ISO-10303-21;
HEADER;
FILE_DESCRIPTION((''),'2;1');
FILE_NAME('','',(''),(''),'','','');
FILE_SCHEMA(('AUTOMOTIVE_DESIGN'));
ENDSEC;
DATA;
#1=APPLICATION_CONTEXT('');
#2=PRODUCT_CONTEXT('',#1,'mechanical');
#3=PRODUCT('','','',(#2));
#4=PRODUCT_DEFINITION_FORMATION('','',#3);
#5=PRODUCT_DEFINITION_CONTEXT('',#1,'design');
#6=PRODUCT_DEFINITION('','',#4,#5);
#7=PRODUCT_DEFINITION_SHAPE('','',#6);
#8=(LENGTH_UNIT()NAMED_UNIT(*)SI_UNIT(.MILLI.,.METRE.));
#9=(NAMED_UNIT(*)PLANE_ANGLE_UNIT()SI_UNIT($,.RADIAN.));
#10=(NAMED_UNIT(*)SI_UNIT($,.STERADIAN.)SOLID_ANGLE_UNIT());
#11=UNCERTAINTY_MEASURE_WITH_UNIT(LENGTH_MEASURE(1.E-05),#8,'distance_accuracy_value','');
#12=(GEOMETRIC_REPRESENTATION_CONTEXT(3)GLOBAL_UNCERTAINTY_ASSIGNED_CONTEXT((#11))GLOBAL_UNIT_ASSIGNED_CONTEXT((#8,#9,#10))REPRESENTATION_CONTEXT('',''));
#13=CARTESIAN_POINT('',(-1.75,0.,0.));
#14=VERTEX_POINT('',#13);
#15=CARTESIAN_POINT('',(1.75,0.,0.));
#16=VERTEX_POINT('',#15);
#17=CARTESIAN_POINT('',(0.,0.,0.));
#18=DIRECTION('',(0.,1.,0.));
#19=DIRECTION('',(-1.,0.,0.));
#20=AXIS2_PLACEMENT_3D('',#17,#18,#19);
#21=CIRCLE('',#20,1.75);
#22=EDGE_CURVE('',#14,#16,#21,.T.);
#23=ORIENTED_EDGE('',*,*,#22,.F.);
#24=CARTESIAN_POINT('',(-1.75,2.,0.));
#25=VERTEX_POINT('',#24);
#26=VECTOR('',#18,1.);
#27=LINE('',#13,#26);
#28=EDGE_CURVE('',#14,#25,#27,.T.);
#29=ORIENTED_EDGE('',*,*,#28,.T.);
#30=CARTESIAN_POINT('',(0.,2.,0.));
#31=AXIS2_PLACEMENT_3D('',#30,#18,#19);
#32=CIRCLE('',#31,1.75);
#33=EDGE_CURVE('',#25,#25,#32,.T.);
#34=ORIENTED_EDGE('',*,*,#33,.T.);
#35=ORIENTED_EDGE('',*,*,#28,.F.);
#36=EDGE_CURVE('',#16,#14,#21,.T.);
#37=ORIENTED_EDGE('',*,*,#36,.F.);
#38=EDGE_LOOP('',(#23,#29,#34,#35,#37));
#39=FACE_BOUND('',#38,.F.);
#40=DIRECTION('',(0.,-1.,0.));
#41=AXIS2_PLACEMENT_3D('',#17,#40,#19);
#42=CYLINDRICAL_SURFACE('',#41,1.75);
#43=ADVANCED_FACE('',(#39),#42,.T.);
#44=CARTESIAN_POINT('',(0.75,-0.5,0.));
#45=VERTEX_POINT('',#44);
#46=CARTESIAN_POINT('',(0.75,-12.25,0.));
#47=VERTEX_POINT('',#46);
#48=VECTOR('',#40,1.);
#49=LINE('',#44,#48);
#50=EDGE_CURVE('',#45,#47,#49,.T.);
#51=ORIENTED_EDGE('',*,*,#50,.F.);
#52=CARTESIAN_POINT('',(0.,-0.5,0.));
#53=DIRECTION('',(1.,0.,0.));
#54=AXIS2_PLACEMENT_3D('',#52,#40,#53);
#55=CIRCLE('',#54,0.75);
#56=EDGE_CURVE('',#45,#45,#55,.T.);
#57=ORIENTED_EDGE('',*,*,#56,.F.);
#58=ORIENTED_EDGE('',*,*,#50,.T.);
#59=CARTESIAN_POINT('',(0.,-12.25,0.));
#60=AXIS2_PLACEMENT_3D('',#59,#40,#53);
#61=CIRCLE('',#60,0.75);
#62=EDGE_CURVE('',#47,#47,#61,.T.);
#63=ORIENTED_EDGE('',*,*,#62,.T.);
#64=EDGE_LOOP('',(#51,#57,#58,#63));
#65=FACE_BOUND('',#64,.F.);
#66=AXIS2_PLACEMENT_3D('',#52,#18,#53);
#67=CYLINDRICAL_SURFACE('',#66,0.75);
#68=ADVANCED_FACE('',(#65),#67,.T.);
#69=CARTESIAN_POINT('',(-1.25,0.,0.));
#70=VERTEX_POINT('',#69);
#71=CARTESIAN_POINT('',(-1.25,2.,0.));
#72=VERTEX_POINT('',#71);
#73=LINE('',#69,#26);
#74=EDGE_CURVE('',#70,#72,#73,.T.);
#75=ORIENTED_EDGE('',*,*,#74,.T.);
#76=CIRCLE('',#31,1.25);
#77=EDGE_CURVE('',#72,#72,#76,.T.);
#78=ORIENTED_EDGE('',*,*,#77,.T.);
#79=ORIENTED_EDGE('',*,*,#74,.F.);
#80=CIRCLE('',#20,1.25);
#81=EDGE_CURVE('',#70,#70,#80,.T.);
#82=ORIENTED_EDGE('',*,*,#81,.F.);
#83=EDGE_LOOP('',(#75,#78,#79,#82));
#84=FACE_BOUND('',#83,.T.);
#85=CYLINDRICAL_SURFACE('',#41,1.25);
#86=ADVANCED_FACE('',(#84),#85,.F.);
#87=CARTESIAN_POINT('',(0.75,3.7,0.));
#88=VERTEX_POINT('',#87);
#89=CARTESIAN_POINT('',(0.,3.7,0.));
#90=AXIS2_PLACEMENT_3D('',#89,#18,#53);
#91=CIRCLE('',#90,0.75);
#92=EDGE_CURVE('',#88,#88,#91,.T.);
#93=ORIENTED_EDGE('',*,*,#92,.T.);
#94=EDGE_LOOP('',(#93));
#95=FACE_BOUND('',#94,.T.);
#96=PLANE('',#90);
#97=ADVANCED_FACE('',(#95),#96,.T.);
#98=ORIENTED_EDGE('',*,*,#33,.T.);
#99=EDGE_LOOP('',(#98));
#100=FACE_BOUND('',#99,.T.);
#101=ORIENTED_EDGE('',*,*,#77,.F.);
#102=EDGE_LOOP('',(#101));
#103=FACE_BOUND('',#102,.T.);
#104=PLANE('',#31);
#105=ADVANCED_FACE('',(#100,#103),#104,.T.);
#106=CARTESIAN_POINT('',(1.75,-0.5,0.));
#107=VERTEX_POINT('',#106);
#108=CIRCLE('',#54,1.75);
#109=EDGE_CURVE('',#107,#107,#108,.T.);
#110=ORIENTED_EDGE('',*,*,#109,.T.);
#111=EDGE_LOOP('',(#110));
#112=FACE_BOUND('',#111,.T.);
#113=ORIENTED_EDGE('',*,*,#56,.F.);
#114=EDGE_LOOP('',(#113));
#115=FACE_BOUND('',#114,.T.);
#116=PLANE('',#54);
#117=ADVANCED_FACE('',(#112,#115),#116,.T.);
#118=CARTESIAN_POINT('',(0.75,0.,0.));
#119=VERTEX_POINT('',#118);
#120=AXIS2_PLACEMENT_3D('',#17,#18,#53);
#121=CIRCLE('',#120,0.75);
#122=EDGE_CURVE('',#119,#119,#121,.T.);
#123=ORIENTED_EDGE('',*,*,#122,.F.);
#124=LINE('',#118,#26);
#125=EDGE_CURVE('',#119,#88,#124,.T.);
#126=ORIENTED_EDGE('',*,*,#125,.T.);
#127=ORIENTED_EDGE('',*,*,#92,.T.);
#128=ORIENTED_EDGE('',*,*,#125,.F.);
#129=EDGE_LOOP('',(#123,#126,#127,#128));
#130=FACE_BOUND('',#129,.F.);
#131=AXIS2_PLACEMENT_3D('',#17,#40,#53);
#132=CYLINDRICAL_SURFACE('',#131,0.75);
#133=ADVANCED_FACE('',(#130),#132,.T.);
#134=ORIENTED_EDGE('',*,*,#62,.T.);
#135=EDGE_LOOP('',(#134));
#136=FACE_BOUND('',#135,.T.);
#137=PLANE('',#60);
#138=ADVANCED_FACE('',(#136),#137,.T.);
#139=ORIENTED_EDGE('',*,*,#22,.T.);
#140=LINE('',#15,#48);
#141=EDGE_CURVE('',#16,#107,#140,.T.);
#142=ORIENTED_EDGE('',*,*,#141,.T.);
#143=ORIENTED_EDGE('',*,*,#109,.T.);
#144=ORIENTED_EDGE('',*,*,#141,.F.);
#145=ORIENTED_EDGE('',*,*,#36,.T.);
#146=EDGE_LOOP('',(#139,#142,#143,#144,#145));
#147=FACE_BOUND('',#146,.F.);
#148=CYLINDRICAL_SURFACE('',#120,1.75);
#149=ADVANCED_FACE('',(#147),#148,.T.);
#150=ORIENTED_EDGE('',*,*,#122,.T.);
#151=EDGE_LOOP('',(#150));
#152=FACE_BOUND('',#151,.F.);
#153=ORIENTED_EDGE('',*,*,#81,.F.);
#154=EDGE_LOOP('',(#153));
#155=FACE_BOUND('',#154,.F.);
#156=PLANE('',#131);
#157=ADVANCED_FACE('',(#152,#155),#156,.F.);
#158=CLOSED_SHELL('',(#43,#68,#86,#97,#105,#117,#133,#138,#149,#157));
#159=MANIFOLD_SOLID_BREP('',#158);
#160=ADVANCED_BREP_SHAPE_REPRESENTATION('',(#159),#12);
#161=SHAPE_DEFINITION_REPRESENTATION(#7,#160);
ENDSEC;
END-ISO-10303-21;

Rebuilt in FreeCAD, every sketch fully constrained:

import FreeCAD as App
import Part
import Sketcher
Q = App.Units.Quantity

doc = App.newDocument("Part")
body = doc.addObject("PartDesign::Body", "Body")

sketch1 = doc.addObject("Sketcher::SketchObject", "Sketch")
body.addObject(sketch1)
sketch1.AttachmentSupport = (doc.XZ_Plane, [""])
sketch1.MapMode = "FlatFace"
sketch1.addGeometry([
    Part.Circle(App.Vector(0, 0, 0), App.Vector(0, 0, 1), 1.75),
    Part.Circle(App.Vector(0, 0, 0), App.Vector(0, 0, 1), 1.25),
], False)
sketch1.addConstraint([
    Sketcher.Constraint("Coincident", 0, 3, -1, 1),
    Sketcher.Constraint("Coincident", 1, 3, -1, 1),
    Sketcher.Constraint("Diameter", 0, Q("3.5 mm")),
    Sketcher.Constraint("Diameter", 1, Q("2.5 mm")),
])
pad1 = doc.addObject("PartDesign::Pad", "Pad")
body.addObject(pad1)
pad1.Profile = sketch1
pad1.Length = 2
pad1.Reversed = True

sketch2 = doc.addObject("Sketcher::SketchObject", "Sketch001")
body.addObject(sketch2)
sketch2.AttachmentSupport = (doc.XZ_Plane, [""])
sketch2.MapMode = "FlatFace"
sketch2.addGeometry(Part.Circle(App.Vector(0, 0, 0), App.Vector(0, 0, 1), 1.75), False)
sketch2.addConstraint([
    Sketcher.Constraint("Coincident", 0, 3, -1, 1),
    Sketcher.Constraint("Diameter", 0, Q("3.5 mm")),
])
pad2 = doc.addObject("PartDesign::Pad", "Pad001")
body.addObject(pad2)
pad2.Profile = sketch2
pad2.Length = 0.5

sketch3 = doc.addObject("Sketcher::SketchObject", "Sketch002")
body.addObject(sketch3)
sketch3.AttachmentSupport = (doc.XZ_Plane, [""])
sketch3.MapMode = "FlatFace"
sketch3.addGeometry(Part.Circle(App.Vector(0, 0, 0), App.Vector(0, 0, 1), 0.75), False)
sketch3.addConstraint([
    Sketcher.Constraint("Coincident", 0, 3, -1, 1),
    Sketcher.Constraint("Diameter", 0, Q("1.5 mm")),
])
pad3 = doc.addObject("PartDesign::Pad", "Pad002")
body.addObject(pad3)
pad3.Profile = sketch3
pad3.Length = 3.7
pad3.Reversed = True

sketch4 = doc.addObject("Sketcher::SketchObject", "Sketch003")
body.addObject(sketch4)
sketch4.AttachmentSupport = (doc.XZ_Plane, [""])
sketch4.MapMode = "FlatFace"
sketch4.AttachmentOffset = App.Placement(App.Vector(0, 0, 0.5), App.Rotation())
sketch4.addGeometry(Part.Circle(App.Vector(0, 0, 0), App.Vector(0, 0, 1), 0.75), False)
sketch4.addConstraint([
    Sketcher.Constraint("Coincident", 0, 3, -1, 1),
    Sketcher.Constraint("Diameter", 0, Q("1.5 mm")),
])
pad4 = doc.addObject("PartDesign::Pad", "Pad003")
body.addObject(pad4)
pad4.Profile = sketch4
pad4.Length = 11.75

doc.recompute()
